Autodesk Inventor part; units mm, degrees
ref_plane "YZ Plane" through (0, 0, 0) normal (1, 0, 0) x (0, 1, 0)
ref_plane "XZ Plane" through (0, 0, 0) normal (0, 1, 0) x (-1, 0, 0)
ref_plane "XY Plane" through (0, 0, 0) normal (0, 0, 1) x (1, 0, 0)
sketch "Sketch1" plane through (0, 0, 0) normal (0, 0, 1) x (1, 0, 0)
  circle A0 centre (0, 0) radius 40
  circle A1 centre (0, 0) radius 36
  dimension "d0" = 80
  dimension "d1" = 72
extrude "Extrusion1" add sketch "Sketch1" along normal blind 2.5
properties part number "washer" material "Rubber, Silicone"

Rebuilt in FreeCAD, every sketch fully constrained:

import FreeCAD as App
import Part
import Sketcher

V = App.Vector
Q = App.Units.Quantity

doc = App.newDocument("Part")
body = doc.addObject("PartDesign::Body", "Body")

sketch1 = doc.addObject("Sketcher::SketchObject", "Sketch")
body.addObject(sketch1)
sketch1.AttachmentSupport = (doc.XY_Plane, [""])
sketch1.MapMode = "FlatFace"
sketch1.addGeometry(Part.Circle(V(0, 0, 0), V(0, 0, 1), 40), False)
sketch1.addGeometry(Part.Circle(V(0, 0, 0), V(0, 0, 1), 36), False)
sketch1.addConstraint(Sketcher.Constraint("Coincident", 0, 3, -1, 1))
sketch1.addConstraint(Sketcher.Constraint("Coincident", 1, 3, -1, 1))
sketch1.addConstraint(Sketcher.Constraint("Diameter", 0, Q("80 mm")))
sketch1.addConstraint(Sketcher.Constraint("Diameter", 1, Q("72 mm")))
pad1 = doc.addObject("PartDesign::Pad", "Pad")
body.addObject(pad1)
pad1.Profile = sketch1
pad1.Length = 2.5

doc.recompute()
